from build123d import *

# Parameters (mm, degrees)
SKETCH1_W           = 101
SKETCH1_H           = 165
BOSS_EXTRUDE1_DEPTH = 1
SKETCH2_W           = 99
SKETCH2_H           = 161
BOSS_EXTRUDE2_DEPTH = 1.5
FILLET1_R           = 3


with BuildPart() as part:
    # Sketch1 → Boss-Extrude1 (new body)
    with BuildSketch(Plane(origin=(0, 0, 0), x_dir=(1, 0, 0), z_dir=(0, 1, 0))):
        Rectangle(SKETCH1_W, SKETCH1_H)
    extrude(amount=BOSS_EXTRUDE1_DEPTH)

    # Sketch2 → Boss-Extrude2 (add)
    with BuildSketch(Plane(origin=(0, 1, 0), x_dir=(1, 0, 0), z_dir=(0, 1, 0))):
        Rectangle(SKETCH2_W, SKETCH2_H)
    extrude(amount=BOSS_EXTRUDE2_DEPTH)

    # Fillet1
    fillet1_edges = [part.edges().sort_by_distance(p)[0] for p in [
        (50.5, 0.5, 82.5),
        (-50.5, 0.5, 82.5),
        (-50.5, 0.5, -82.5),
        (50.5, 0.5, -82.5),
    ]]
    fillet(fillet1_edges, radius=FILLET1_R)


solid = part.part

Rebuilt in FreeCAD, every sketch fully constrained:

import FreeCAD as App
import Part
import Sketcher

V = App.Vector
Q = App.Units.Quantity


def edges_at(feature, points):
    """Names of the edges that pass closest to the given points."""
    edges = feature.Shape.Edges
    near = lambda p: min(range(len(edges)), key=lambda i: edges[i].distToShape(Part.Vertex(*p))[0])
    return sorted({f"Edge{near(p) + 1}" for p in points})


def add_polygon(sketch, points):
    """Adds a closed chain of lines whose ends are joined by coincident constraints."""
    first, n = sketch.GeometryCount, len(points)
    for a, b in zip(points, points[1:] + points[:1]):
        sketch.addGeometry(Part.LineSegment(App.Vector(*a, 0), App.Vector(*b, 0)), False)
    for i in range(n):
        sketch.addConstraint(Sketcher.Constraint("Coincident", first + i, 2, first + (i + 1) % n, 1))

doc = App.newDocument("Part")
params = doc.addObject("Spreadsheet::Sheet", "Params")
for row, (alias, value) in enumerate([
    ("sketch1_width", "101 mm"),
    ("sketch1_height", "165 mm"),
    ("pad1_length", "1 mm"),
    ("sketch2_width", "99 mm"),
    ("sketch2_height", "161 mm"),
    ("pad2_length", "1.5 mm"),
    ("fillet_radius", "3 mm"),
], start=1):
    params.set(f"A{row}", alias)
    params.set(f"B{row}", "=" + value)
    params.setAlias(f"B{row}", alias)

body = doc.addObject("PartDesign::Body", "Body")

sketch1 = doc.addObject("Sketcher::SketchObject", "Sketch")
body.addObject(sketch1)
sketch1.AttachmentSupport = (doc.XZ_Plane, [""])
sketch1.MapMode = "FlatFace"
add_polygon(sketch1, [(-50, -82), (-50, 82), (50, 82), (50, -82)])
sketch1.addConstraint([
    Sketcher.Constraint("Vertical", 0),
    Sketcher.Constraint("Horizontal", 1),
    Sketcher.Constraint("Vertical", 2),
    Sketcher.Constraint("Horizontal", 3),
    Sketcher.Constraint("Symmetric", 0, 2, 2, 2, -1, 1),
    Sketcher.Constraint("DistanceX", 1, 1, 1, 2, Q("101 mm")),
    Sketcher.Constraint("DistanceY", 0, 1, 0, 2, Q("165 mm")),
])
sketch1.setExpression("Constraints[9]", "Params.sketch1_width")
sketch1.setExpression("Constraints[10]", "Params.sketch1_height")
pad1 = doc.addObject("PartDesign::Pad", "Pad")
body.addObject(pad1)
pad1.Profile = sketch1
pad1.setExpression("Length", "Params.pad1_length")
pad1.Reversed = True

sketch2 = doc.addObject("Sketcher::SketchObject", "Sketch001")
body.addObject(sketch2)
sketch2.AttachmentSupport = (doc.XZ_Plane, [""])
sketch2.MapMode = "FlatFace"
sketch2.AttachmentOffset = App.Placement(V(0, 0, -1), App.Rotation())
add_polygon(sketch2, [(-50, -80), (-50, 80), (50, 80), (50, -80)])
sketch2.addConstraint([
    Sketcher.Constraint("Vertical", 0),
    Sketcher.Constraint("Horizontal", 1),
    Sketcher.Constraint("Vertical", 2),
    Sketcher.Constraint("Horizontal", 3),
    Sketcher.Constraint("Symmetric", 0, 2, 2, 2, -1, 1),
    Sketcher.Constraint("DistanceX", 1, 1, 1, 2, Q("99 mm")),
    Sketcher.Constraint("DistanceY", 0, 1, 0, 2, Q("161 mm")),
])
sketch2.setExpression("Constraints[9]", "Params.sketch2_width")
sketch2.setExpression("Constraints[10]", "Params.sketch2_height")
pad2 = doc.addObject("PartDesign::Pad", "Pad001")
body.addObject(pad2)
pad2.Profile = sketch2
pad2.setExpression("Length", "Params.pad2_length")
pad2.Reversed = True
doc.recompute()

fillet = doc.addObject("PartDesign::Fillet", "Fillet")
body.addObject(fillet)
fillet.Base = (pad2, edges_at(pad2, [
    (50.5, 0.5, 82.5),
    (-50.5, 0.5, 82.5),
    (-50.5, 0.5, -82.5),
    (50.5, 0.5, -82.5),
]))
fillet.setExpression("Radius", "Params.fillet_radius")

doc.recompute()
